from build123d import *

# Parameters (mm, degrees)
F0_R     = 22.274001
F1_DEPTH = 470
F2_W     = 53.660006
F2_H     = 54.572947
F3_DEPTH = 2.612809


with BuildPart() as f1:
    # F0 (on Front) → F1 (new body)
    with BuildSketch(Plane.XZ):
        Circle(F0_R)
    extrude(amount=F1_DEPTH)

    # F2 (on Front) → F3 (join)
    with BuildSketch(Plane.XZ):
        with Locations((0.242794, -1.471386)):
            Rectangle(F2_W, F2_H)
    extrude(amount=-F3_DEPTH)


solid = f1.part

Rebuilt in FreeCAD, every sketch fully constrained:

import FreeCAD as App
import Part
import Sketcher
Q = App.Units.Quantity

doc = App.newDocument("Part")
body = doc.addObject("PartDesign::Body", "Body")

sketch1 = body.newObject("Sketcher::SketchObject", "Sketch")
sketch1.AttachmentSupport = (doc.getObject("XZ_Plane"), [""])
sketch1.MapMode = "FlatFace"
sketch1.addGeometry(Part.Circle(App.Vector(0, 0, 0), App.Vector(0, 0, 1), 22), False)
sketch1.addConstraint([
    Sketcher.Constraint("Coincident", 0, 3, -1, 1),
    Sketcher.Constraint("Diameter", 0, Q("44.548002 mm")),
])
pad1 = body.newObject("PartDesign::Pad", "Pad")
pad1.Profile = sketch1
pad1.Length = 470

sketch2 = body.newObject("Sketcher::SketchObject", "Sketch001")
sketch2.AttachmentSupport = (doc.getObject("XZ_Plane"), [""])
sketch2.MapMode = "FlatFace"
sketch2.addGeometry([
    Part.LineSegment(App.Vector(-27, 26, 0), App.Vector(-27, -29, 0)),
    Part.LineSegment(App.Vector(-27, -29, 0), App.Vector(27, -29, 0)),
    Part.LineSegment(App.Vector(27, -29, 0), App.Vector(27, 26, 0)),
    Part.LineSegment(App.Vector(27, 26, 0), App.Vector(-27, 26, 0)),
], False)
sketch2.addConstraint([
    Sketcher.Constraint("Coincident", 0, 2, 1, 1),
    Sketcher.Constraint("Coincident", 1, 2, 2, 1),
    Sketcher.Constraint("Coincident", 2, 2, 3, 1),
    Sketcher.Constraint("Coincident", 3, 2, 0, 1),
    Sketcher.Constraint("Vertical", 0),
    Sketcher.Constraint("Horizontal", 1),
    Sketcher.Constraint("Vertical", 2),
    Sketcher.Constraint("Horizontal", 3),
    Sketcher.Constraint("DistanceX", 1, 1, 1, 2, Q("53.660006 mm")),
    Sketcher.Constraint("DistanceY", 0, 2, 0, 1, Q("54.572947 mm")),
    Sketcher.Constraint("DistanceX", 0, 2, -1, 1, Q("26.587209 mm")),
    Sketcher.Constraint("DistanceY", 0, 2, -1, 1, Q("28.757859 mm")),
])
pad2 = body.newObject("PartDesign::Pad", "Pad001")
pad2.Profile = sketch2
pad2.Length = 2.612809
pad2.Reversed = True

doc.recompute()
